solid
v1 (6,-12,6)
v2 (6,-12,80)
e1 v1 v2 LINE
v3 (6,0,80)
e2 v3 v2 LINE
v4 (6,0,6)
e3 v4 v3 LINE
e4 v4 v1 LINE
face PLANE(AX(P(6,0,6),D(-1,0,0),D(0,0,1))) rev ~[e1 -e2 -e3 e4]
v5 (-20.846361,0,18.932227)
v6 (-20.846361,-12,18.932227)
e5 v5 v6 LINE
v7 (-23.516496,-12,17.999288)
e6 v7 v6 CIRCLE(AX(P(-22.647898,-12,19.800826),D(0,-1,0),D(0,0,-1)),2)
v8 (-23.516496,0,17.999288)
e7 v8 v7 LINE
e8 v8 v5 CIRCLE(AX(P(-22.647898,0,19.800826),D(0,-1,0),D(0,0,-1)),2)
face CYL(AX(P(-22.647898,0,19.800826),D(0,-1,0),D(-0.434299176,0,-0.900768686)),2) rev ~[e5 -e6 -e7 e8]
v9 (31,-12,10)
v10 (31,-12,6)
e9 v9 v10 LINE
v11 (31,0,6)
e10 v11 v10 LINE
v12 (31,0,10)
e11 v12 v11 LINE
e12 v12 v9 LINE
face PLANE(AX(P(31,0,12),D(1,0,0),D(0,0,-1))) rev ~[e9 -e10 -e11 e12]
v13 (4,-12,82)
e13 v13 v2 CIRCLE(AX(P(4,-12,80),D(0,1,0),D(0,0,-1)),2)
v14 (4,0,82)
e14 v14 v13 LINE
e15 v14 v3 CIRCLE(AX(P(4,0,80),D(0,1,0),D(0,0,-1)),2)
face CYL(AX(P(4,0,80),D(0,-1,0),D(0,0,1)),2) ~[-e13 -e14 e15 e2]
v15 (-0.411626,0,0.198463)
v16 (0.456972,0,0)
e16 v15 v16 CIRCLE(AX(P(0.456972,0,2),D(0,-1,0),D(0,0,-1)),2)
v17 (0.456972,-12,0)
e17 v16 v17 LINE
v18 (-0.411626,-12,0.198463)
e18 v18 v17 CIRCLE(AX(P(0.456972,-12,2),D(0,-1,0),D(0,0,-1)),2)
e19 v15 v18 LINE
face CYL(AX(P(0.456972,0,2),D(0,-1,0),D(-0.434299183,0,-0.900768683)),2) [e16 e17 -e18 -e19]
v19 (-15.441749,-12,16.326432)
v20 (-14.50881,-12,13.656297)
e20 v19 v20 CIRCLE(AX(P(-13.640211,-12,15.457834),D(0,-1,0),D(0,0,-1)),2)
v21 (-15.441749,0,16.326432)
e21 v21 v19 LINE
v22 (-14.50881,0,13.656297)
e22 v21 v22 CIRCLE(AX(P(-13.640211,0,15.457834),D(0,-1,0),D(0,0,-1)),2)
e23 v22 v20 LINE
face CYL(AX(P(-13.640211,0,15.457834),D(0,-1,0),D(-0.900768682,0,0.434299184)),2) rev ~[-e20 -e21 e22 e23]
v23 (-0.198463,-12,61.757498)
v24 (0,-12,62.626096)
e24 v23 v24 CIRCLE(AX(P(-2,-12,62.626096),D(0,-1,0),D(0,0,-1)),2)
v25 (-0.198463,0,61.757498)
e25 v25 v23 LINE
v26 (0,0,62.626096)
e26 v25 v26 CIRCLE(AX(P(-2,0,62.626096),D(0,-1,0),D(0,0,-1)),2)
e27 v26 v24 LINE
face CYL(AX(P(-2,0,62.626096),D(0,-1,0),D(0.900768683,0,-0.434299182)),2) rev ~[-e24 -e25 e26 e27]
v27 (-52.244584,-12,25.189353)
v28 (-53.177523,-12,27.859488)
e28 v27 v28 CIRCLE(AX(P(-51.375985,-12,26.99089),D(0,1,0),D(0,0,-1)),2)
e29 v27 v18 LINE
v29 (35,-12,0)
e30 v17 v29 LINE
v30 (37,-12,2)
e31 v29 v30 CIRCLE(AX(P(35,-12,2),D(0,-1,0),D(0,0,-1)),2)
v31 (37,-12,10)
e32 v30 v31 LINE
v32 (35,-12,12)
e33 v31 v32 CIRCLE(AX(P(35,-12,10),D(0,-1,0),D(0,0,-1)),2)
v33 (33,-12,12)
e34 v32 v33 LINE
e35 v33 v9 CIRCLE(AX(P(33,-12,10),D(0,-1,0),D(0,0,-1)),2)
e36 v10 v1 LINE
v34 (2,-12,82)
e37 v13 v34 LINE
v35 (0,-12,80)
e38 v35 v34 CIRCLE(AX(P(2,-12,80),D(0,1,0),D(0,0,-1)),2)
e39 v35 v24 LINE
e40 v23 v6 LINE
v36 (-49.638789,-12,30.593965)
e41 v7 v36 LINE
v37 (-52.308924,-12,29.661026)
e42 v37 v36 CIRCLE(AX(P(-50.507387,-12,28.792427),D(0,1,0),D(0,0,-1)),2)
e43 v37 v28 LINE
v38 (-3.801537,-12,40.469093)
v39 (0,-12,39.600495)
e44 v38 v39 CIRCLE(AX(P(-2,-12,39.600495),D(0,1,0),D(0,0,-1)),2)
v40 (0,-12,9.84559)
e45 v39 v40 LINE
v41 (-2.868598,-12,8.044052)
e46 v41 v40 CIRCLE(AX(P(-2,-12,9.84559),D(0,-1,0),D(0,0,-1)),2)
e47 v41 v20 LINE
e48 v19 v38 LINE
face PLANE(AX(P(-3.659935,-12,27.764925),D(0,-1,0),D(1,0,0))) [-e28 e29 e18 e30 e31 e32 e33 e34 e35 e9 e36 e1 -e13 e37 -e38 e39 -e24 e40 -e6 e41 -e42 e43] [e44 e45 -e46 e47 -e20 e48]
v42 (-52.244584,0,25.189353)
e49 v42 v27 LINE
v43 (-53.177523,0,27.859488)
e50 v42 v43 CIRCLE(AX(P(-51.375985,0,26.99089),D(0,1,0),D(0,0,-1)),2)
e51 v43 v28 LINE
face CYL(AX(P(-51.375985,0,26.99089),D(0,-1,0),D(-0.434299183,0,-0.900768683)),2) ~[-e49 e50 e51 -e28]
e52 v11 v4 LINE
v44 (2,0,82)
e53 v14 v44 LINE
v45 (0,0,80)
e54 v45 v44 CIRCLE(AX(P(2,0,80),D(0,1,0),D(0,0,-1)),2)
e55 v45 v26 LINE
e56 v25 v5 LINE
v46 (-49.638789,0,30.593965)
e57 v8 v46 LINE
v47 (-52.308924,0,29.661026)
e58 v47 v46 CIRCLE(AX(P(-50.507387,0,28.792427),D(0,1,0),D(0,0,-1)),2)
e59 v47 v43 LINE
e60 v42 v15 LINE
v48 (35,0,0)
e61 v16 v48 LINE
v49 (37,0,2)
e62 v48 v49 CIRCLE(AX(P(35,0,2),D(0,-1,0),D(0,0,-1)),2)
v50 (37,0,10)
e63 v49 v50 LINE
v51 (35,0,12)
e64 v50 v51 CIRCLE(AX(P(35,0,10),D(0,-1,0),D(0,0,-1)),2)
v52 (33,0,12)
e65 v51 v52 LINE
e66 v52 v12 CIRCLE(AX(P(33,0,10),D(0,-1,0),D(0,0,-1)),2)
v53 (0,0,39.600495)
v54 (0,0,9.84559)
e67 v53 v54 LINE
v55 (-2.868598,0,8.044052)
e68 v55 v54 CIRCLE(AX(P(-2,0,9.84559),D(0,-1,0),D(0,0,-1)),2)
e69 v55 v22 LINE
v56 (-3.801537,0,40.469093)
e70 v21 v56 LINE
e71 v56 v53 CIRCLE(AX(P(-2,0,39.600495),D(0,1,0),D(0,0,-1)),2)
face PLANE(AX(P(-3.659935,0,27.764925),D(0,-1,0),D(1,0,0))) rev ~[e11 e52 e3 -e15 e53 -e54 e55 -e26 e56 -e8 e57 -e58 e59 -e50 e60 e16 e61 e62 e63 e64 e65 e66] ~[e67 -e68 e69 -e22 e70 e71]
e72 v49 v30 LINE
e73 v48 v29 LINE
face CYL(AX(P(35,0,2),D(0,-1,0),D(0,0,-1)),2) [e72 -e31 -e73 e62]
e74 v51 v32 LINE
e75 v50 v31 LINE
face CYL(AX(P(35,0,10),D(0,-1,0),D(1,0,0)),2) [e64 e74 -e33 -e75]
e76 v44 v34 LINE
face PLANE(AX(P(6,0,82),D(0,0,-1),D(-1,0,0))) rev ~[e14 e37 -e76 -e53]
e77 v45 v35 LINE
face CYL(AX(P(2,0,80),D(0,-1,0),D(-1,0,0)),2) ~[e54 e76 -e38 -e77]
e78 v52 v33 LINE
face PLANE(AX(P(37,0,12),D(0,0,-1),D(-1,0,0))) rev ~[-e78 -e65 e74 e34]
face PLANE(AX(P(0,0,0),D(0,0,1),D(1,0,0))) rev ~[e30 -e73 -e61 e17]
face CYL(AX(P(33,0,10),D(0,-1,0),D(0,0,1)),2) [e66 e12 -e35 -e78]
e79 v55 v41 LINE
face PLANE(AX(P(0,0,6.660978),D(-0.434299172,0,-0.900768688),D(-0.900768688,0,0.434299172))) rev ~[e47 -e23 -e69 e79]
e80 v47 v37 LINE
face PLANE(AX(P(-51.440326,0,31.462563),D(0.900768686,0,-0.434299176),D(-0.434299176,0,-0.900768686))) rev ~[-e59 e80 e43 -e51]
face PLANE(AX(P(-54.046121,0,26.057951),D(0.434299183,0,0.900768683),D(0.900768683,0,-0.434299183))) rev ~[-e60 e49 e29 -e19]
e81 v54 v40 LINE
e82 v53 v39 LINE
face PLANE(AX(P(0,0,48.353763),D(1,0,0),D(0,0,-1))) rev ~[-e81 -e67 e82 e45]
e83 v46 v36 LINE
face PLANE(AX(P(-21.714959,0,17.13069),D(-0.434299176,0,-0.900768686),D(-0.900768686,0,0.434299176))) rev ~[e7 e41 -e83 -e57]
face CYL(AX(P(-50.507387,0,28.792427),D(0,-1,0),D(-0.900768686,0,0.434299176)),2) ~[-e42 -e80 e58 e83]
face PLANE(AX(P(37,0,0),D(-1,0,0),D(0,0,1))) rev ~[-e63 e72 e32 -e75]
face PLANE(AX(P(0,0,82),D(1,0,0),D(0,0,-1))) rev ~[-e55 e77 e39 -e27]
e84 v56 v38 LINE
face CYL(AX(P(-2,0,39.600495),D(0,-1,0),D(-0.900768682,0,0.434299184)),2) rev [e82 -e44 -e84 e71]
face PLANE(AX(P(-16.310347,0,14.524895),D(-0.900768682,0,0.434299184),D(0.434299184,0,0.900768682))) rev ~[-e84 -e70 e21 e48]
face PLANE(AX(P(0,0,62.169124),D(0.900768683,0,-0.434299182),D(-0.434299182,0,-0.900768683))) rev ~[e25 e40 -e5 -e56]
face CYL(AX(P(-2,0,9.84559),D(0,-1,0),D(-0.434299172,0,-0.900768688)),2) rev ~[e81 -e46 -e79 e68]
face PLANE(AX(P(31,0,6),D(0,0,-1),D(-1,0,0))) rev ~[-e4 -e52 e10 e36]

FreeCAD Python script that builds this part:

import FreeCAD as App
import Part
import Sketcher


def edges_at(feature, points):
    """Names of the edges that pass closest to the given points."""
    edges = feature.Shape.Edges
    near = lambda p: min(range(len(edges)), key=lambda i: edges[i].distToShape(Part.Vertex(*p))[0])
    return sorted({f"Edge{near(p) + 1}" for p in points})

doc = App.newDocument("Part")
body = doc.addObject("PartDesign::Body", "Body")

# Sketch on XZ plane
sketch1 = doc.addObject("Sketcher::SketchObject", "Sketch")
body.addObject(sketch1)
sketch1.AttachmentSupport = (doc.XZ_Plane, [""])
sketch1.MapMode = "FlatFace"
sketch1.addGeometry([
    Part.LineSegment(App.Vector(-54, 26, 0), App.Vector(0, 0, 0)),  # 0
    Part.LineSegment(App.Vector(0, 0, 0), App.Vector(37, 0, 0)),  # 1
    Part.LineSegment(App.Vector(37, 0, 0), App.Vector(37, 12, 0)),  # 2
    Part.LineSegment(App.Vector(37, 12, 0), App.Vector(31, 12, 0)),  # 3
    Part.LineSegment(App.Vector(31, 12, 0), App.Vector(31, 6, 0)),  # 4
    Part.LineSegment(App.Vector(31, 6, 0), App.Vector(6, 6, 0)),  # 5
    Part.LineSegment(App.Vector(6, 6, 0), App.Vector(6, 82, 0)),  # 6
    Part.LineSegment(App.Vector(6, 82, 0), App.Vector(0, 82, 0)),  # 7
    Part.LineSegment(App.Vector(0, 82, 0), App.Vector(0, 62, 0)),  # 8
    Part.LineSegment(App.Vector(0, 62, 0), App.Vector(-22, 17, 0)),  # 9
    Part.LineSegment(App.Vector(-22, 17, 0), App.Vector(-51, 31, 0)),  # 10
    Part.LineSegment(App.Vector(-51, 31, 0), App.Vector(-54, 26, 0)),  # 11
    Part.LineSegment(App.Vector(-16, 15, 0), App.Vector(0, 48, 0)),  # 12
    Part.LineSegment(App.Vector(0, 48, 0), App.Vector(0, 7, 0)),  # 13
    Part.LineSegment(App.Vector(0, 7, 0), App.Vector(-16, 15, 0)),  # 14
], False)
sketch1.addConstraint([
    Sketcher.Constraint("Coincident", 0, 2, 1, 1),
    Sketcher.Constraint("Coincident", 1, 2, 2, 1),
    Sketcher.Constraint("Coincident", 2, 2, 3, 1),
    Sketcher.Constraint("Coincident", 3, 2, 4, 1),
    Sketcher.Constraint("Coincident", 4, 2, 5, 1),
    Sketcher.Constraint("Coincident", 5, 2, 6, 1),
    Sketcher.Constraint("Coincident", 6, 2, 7, 1),
    Sketcher.Constraint("Coincident", 7, 2, 8, 1),
    Sketcher.Constraint("Coincident", 8, 2, 9, 1),
    Sketcher.Constraint("Coincident", 9, 2, 10, 1),
    Sketcher.Constraint("Coincident", 10, 2, 11, 1),
    Sketcher.Constraint("Coincident", 11, 2, 0, 1),
    Sketcher.Constraint("Coincident", 12, 2, 13, 1),
    Sketcher.Constraint("Coincident", 13, 2, 14, 1),
    Sketcher.Constraint("Coincident", 14, 2, 12, 1),
    Sketcher.Constraint("Horizontal", 1),
    Sketcher.Constraint("Vertical", 2),
    Sketcher.Constraint("Horizontal", 3),
    Sketcher.Constraint("Vertical", 4),
    Sketcher.Constraint("Horizontal", 5),
    Sketcher.Constraint("Vertical", 6),
    Sketcher.Constraint("Horizontal", 7),
    Sketcher.Constraint("Vertical", 8),
    Sketcher.Constraint("Vertical", 13),
    Sketcher.Constraint("Coincident", 0, 2, -1, 1),
    Sketcher.Constraint("PointOnObject", 7, 2, -2),
    Sketcher.Constraint("PointOnObject", 12, 2, -2),
    Sketcher.Constraint("Perpendicular", 0, 9),
    Sketcher.Constraint("Perpendicular", 9, 10),
    Sketcher.Constraint("Perpendicular", 10, 11),
    Sketcher.Constraint("Parallel", 11, 12),
    Sketcher.Constraint("Perpendicular", 12, 14),
    Sketcher.Constraint("Equal", 3, 7),
    Sketcher.Constraint("Equal", 7, 4),
    Sketcher.Constraint("DistanceX", 1, 1, 1, 2, 37.0),
    Sketcher.Constraint("DistanceX", 3, 2, 3, 1, 6.0),
    Sketcher.Constraint("DistanceY", 2, 1, 2, 2, 12.0),
    Sketcher.Constraint("DistanceY", 6, 1, 6, 2, 76.0),
    Sketcher.Constraint("Distance", 0, 60.0),
    Sketcher.Constraint("Distance", 9, 50.0),
    Sketcher.Constraint("Distance", 10, 33.0),
    Sketcher.Constraint("Distance", 11, 6.0),
    Sketcher.Constraint("DistanceY", 13, 2, 13, 1, 41.692785),
    Sketcher.Constraint("DistanceY", 12, 2, 8, 2, 13.815361),
])
pad1 = doc.addObject("PartDesign::Pad", "Pad")
body.addObject(pad1)
pad1.Profile = sketch1
pad1.Length = 12
doc.recompute()

fillet = doc.addObject("PartDesign::Fillet", "Fillet")
body.addObject(fillet)
fillet.Base = (pad1, edges_at(pad1, [
    (37, -6, 0),
    (-21.715, -6, 17.131),
    (0, -6, 62.169),
    (-16.31, -6, 14.525),
    (0, -6, 6.661),
    (31, -6, 12),
    (37, -6, 12),
    (0, -6, 82),
    (6, -6, 82),
    (-51.44, -6, 31.463),
    (-54.046, -6, 26.058),
    (0, -6, 0),
    (0, -6, 48.354),
]))
fillet.Radius = 2

doc.recompute()
